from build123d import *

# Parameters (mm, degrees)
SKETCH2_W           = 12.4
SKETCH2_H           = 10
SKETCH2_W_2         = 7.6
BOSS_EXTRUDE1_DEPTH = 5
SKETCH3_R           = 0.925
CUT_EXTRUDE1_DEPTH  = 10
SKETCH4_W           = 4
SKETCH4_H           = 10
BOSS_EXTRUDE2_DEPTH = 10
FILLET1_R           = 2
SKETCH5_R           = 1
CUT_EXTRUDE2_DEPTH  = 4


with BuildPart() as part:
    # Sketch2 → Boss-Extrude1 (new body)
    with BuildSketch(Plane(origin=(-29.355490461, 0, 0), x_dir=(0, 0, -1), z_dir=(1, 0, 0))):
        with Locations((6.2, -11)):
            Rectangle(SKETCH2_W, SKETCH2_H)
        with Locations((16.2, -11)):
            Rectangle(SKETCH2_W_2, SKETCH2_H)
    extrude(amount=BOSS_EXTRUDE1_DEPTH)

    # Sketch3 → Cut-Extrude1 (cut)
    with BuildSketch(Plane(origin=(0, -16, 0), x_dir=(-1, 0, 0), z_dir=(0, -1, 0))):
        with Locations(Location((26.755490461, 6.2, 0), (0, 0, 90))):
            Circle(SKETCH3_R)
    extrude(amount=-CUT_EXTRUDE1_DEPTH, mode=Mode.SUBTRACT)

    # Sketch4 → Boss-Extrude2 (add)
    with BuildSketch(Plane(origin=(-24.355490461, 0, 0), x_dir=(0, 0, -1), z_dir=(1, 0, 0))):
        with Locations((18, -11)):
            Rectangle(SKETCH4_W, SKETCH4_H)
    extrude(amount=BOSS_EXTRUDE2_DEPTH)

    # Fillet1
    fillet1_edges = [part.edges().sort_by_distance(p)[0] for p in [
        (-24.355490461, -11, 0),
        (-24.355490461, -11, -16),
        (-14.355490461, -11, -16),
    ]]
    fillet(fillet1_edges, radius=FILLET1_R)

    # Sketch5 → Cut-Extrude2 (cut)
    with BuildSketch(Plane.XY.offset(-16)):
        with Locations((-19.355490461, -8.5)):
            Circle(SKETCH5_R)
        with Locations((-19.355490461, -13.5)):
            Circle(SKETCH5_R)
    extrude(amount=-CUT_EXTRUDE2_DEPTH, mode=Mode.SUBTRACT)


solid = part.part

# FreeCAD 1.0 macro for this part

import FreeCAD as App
import Part
import Sketcher


def edges_at(feature, points):
    """Names of the edges that pass closest to the given points."""
    edges = feature.Shape.Edges
    near = lambda p: min(range(len(edges)), key=lambda i: edges[i].distToShape(Part.Vertex(*p))[0])
    return sorted({f"Edge{near(p) + 1}" for p in points})

doc = App.newDocument("Part")
params = doc.addObject("Spreadsheet::Sheet", "Params")
for row, (alias, value) in enumerate([
    ("sketch1_width", "10 mm"),
    ("sketch1_height", "20 mm"),
    ("pad1_length", "5 mm"),
    ("sketch2_diameter", "1.85 mm"),
    ("pocket1_length", "10 mm"),
    ("sketch3_width", "10 mm"),
    ("sketch3_height", "4 mm"),
    ("pad2_length", "10 mm"),
    ("fillet_radius", "2 mm"),
    ("sketch4_diameter", "2 mm"),
    ("pocket2_length", "4 mm"),
], start=1):
    params.set(f"A{row}", alias)
    params.set(f"B{row}", "=" + value)
    params.setAlias(f"B{row}", alias)

body = doc.addObject("PartDesign::Body", "Body")

# Sketch on YZ plane
sketch1 = doc.addObject("Sketcher::SketchObject", "Sketch")
body.addObject(sketch1)
sketch1.AttachmentSupport = (doc.YZ_Plane, [""])
sketch1.MapMode = "FlatFace"
sketch1.AttachmentOffset = App.Placement(App.Vector(0, 0, -29.35549), App.Rotation())
sketch1.addGeometry(Part.LineSegment(App.Vector(-6, 0, 0), App.Vector(-16, 0, 0)), False)
sketch1.addGeometry(Part.LineSegment(App.Vector(-16, 0, 0), App.Vector(-16, -20, 0)), False)
sketch1.addGeometry(Part.LineSegment(App.Vector(-16, -20, 0), App.Vector(-6, -20, 0)), False)
sketch1.addGeometry(Part.LineSegment(App.Vector(-6, -20, 0), App.Vector(-6, 0, 0)), False)
sketch1.addConstraint(Sketcher.Constraint("Coincident", 0, 2, 1, 1))
sketch1.addConstraint(Sketcher.Constraint("Coincident", 1, 2, 2, 1))
sketch1.addConstraint(Sketcher.Constraint("Coincident", 2, 2, 3, 1))
sketch1.addConstraint(Sketcher.Constraint("Coincident", 3, 2, 0, 1))
sketch1.addConstraint(Sketcher.Constraint("Horizontal", 0))
sketch1.addConstraint(Sketcher.Constraint("Vertical", 1))
sketch1.addConstraint(Sketcher.Constraint("Horizontal", 2))
sketch1.addConstraint(Sketcher.Constraint("Vertical", 3))
sketch1.addConstraint(Sketcher.Constraint("PointOnObject", 0, 2, -1))
sketch1.addConstraint(Sketcher.Constraint("DistanceX", 0, 2, 0, 1, 10.0))
sketch1.addConstraint(Sketcher.Constraint("DistanceY", 1, 2, 1, 1, 20.0))
sketch1.addConstraint(Sketcher.Constraint("DistanceX", 0, 2, -1, 1, 16.0))
sketch1.setExpression("Constraints[9]", "Params.sketch1_width")
sketch1.setExpression("Constraints[10]", "Params.sketch1_height")
pad1 = doc.addObject("PartDesign::Pad", "Pad")
body.addObject(pad1)
pad1.Profile = sketch1
pad1.setExpression("Length", "Params.pad1_length")

# Sketch on XZ plane
sketch2 = doc.addObject("Sketcher::SketchObject", "Sketch001")
body.addObject(sketch2)
sketch2.AttachmentSupport = (doc.XZ_Plane, [""])
sketch2.MapMode = "FlatFace"
sketch2.AttachmentOffset = App.Placement(App.Vector(0, 0, 16), App.Rotation())
sketch2.addGeometry(Part.Circle(App.Vector(-26.8, -6.2, 0), App.Vector(0, 0, 1), 0.9), False)
sketch2.addConstraint(Sketcher.Constraint("Diameter", 0, 1.85))
sketch2.addConstraint(Sketcher.Constraint("DistanceY", 0, 3, -1, 1, 6.2))
sketch2.addConstraint(Sketcher.Constraint("DistanceX", 0, 3, -1, 1, 26.75549))
sketch2.setExpression("Constraints[0]", "Params.sketch2_diameter")
pocket1 = doc.addObject("PartDesign::Pocket", "Pocket")
body.addObject(pocket1)
pocket1.Profile = sketch2
pocket1.setExpression("Length", "Params.pocket1_length")

# Sketch on YZ plane
sketch3 = doc.addObject("Sketcher::SketchObject", "Sketch002")
body.addObject(sketch3)
sketch3.AttachmentSupport = (doc.YZ_Plane, [""])
sketch3.MapMode = "FlatFace"
sketch3.AttachmentOffset = App.Placement(App.Vector(0, 0, -24.35549), App.Rotation())
sketch3.addGeometry(Part.LineSegment(App.Vector(-6, -16, 0), App.Vector(-16, -16, 0)), False)
sketch3.addGeometry(Part.LineSegment(App.Vector(-16, -16, 0), App.Vector(-16, -20, 0)), False)
sketch3.addGeometry(Part.LineSegment(App.Vector(-16, -20, 0), App.Vector(-6, -20, 0)), False)
sketch3.addGeometry(Part.LineSegment(App.Vector(-6, -20, 0), App.Vector(-6, -16, 0)), False)
sketch3.addConstraint(Sketcher.Constraint("Coincident", 0, 2, 1, 1))
sketch3.addConstraint(Sketcher.Constraint("Coincident", 1, 2, 2, 1))
sketch3.addConstraint(Sketcher.Constraint("Coincident", 2, 2, 3, 1))
sketch3.addConstraint(Sketcher.Constraint("Coincident", 3, 2, 0, 1))
sketch3.addConstraint(Sketcher.Constraint("Horizontal", 0))
sketch3.addConstraint(Sketcher.Constraint("Vertical", 1))
sketch3.addConstraint(Sketcher.Constraint("Horizontal", 2))
sketch3.addConstraint(Sketcher.Constraint("Vertical", 3))
sketch3.addConstraint(Sketcher.Constraint("DistanceX", 0, 2, 0, 1, 10.0))
sketch3.addConstraint(Sketcher.Constraint("DistanceY", 1, 2, 1, 1, 4.0))
sketch3.addConstraint(Sketcher.Constraint("DistanceX", 0, 2, -1, 1, 16.0))
sketch3.addConstraint(Sketcher.Constraint("DistanceY", 0, 2, -1, 1, 16.0))
sketch3.setExpression("Constraints[8]", "Params.sketch3_width")
sketch3.setExpression("Constraints[9]", "Params.sketch3_height")
pad2 = doc.addObject("PartDesign::Pad", "Pad001")
body.addObject(pad2)
pad2.Profile = sketch3
pad2.setExpression("Length", "Params.pad2_length")
doc.recompute()

fillet = doc.addObject("PartDesign::Fillet", "Fillet")
body.addObject(fillet)
fillet.Base = (pad2, edges_at(pad2, [(-24.355, -11, 0), (-24.355, -11, -16), (-14.355, -11, -16)]))
fillet.setExpression("Radius", "Params.fillet_radius")

# Sketch on XY plane
sketch4 = doc.addObject("Sketcher::SketchObject", "Sketch003")
body.addObject(sketch4)
sketch4.AttachmentSupport = (doc.XY_Plane, [""])
sketch4.MapMode = "FlatFace"
sketch4.AttachmentOffset = App.Placement(App.Vector(0, 0, -16), App.Rotation())
sketch4.addGeometry(Part.Circle(App.Vector(-19.4, -8.5, 0), App.Vector(0, 0, 1), 1), False)
sketch4.addGeometry(Part.Circle(App.Vector(-19.4, -13.5, 0), App.Vector(0, 0, 1), 1), False)
sketch4.addConstraint(Sketcher.Constraint("Equal", 0, 1))
sketch4.addConstraint(Sketcher.Constraint("Vertical", 0, 3, 1, 3))
sketch4.addConstraint(Sketcher.Constraint("Diameter", 0, 2.0))
sketch4.addConstraint(Sketcher.Constraint("DistanceY", 1, 3, 0, 3, 5.0))
sketch4.addConstraint(Sketcher.Constraint("DistanceY", 0, 3, -1, 1, 8.5))
sketch4.addConstraint(Sketcher.Constraint("DistanceX", 0, 3, -1, 1, 19.35549))
sketch4.setExpression("Constraints[2]", "Params.sketch4_diameter")
pocket2 = doc.addObject("PartDesign::Pocket", "Pocket001")
body.addObject(pocket2)
pocket2.Profile = sketch4
pocket2.setExpression("Length", "Params.pocket2_length")

doc.recompute()
